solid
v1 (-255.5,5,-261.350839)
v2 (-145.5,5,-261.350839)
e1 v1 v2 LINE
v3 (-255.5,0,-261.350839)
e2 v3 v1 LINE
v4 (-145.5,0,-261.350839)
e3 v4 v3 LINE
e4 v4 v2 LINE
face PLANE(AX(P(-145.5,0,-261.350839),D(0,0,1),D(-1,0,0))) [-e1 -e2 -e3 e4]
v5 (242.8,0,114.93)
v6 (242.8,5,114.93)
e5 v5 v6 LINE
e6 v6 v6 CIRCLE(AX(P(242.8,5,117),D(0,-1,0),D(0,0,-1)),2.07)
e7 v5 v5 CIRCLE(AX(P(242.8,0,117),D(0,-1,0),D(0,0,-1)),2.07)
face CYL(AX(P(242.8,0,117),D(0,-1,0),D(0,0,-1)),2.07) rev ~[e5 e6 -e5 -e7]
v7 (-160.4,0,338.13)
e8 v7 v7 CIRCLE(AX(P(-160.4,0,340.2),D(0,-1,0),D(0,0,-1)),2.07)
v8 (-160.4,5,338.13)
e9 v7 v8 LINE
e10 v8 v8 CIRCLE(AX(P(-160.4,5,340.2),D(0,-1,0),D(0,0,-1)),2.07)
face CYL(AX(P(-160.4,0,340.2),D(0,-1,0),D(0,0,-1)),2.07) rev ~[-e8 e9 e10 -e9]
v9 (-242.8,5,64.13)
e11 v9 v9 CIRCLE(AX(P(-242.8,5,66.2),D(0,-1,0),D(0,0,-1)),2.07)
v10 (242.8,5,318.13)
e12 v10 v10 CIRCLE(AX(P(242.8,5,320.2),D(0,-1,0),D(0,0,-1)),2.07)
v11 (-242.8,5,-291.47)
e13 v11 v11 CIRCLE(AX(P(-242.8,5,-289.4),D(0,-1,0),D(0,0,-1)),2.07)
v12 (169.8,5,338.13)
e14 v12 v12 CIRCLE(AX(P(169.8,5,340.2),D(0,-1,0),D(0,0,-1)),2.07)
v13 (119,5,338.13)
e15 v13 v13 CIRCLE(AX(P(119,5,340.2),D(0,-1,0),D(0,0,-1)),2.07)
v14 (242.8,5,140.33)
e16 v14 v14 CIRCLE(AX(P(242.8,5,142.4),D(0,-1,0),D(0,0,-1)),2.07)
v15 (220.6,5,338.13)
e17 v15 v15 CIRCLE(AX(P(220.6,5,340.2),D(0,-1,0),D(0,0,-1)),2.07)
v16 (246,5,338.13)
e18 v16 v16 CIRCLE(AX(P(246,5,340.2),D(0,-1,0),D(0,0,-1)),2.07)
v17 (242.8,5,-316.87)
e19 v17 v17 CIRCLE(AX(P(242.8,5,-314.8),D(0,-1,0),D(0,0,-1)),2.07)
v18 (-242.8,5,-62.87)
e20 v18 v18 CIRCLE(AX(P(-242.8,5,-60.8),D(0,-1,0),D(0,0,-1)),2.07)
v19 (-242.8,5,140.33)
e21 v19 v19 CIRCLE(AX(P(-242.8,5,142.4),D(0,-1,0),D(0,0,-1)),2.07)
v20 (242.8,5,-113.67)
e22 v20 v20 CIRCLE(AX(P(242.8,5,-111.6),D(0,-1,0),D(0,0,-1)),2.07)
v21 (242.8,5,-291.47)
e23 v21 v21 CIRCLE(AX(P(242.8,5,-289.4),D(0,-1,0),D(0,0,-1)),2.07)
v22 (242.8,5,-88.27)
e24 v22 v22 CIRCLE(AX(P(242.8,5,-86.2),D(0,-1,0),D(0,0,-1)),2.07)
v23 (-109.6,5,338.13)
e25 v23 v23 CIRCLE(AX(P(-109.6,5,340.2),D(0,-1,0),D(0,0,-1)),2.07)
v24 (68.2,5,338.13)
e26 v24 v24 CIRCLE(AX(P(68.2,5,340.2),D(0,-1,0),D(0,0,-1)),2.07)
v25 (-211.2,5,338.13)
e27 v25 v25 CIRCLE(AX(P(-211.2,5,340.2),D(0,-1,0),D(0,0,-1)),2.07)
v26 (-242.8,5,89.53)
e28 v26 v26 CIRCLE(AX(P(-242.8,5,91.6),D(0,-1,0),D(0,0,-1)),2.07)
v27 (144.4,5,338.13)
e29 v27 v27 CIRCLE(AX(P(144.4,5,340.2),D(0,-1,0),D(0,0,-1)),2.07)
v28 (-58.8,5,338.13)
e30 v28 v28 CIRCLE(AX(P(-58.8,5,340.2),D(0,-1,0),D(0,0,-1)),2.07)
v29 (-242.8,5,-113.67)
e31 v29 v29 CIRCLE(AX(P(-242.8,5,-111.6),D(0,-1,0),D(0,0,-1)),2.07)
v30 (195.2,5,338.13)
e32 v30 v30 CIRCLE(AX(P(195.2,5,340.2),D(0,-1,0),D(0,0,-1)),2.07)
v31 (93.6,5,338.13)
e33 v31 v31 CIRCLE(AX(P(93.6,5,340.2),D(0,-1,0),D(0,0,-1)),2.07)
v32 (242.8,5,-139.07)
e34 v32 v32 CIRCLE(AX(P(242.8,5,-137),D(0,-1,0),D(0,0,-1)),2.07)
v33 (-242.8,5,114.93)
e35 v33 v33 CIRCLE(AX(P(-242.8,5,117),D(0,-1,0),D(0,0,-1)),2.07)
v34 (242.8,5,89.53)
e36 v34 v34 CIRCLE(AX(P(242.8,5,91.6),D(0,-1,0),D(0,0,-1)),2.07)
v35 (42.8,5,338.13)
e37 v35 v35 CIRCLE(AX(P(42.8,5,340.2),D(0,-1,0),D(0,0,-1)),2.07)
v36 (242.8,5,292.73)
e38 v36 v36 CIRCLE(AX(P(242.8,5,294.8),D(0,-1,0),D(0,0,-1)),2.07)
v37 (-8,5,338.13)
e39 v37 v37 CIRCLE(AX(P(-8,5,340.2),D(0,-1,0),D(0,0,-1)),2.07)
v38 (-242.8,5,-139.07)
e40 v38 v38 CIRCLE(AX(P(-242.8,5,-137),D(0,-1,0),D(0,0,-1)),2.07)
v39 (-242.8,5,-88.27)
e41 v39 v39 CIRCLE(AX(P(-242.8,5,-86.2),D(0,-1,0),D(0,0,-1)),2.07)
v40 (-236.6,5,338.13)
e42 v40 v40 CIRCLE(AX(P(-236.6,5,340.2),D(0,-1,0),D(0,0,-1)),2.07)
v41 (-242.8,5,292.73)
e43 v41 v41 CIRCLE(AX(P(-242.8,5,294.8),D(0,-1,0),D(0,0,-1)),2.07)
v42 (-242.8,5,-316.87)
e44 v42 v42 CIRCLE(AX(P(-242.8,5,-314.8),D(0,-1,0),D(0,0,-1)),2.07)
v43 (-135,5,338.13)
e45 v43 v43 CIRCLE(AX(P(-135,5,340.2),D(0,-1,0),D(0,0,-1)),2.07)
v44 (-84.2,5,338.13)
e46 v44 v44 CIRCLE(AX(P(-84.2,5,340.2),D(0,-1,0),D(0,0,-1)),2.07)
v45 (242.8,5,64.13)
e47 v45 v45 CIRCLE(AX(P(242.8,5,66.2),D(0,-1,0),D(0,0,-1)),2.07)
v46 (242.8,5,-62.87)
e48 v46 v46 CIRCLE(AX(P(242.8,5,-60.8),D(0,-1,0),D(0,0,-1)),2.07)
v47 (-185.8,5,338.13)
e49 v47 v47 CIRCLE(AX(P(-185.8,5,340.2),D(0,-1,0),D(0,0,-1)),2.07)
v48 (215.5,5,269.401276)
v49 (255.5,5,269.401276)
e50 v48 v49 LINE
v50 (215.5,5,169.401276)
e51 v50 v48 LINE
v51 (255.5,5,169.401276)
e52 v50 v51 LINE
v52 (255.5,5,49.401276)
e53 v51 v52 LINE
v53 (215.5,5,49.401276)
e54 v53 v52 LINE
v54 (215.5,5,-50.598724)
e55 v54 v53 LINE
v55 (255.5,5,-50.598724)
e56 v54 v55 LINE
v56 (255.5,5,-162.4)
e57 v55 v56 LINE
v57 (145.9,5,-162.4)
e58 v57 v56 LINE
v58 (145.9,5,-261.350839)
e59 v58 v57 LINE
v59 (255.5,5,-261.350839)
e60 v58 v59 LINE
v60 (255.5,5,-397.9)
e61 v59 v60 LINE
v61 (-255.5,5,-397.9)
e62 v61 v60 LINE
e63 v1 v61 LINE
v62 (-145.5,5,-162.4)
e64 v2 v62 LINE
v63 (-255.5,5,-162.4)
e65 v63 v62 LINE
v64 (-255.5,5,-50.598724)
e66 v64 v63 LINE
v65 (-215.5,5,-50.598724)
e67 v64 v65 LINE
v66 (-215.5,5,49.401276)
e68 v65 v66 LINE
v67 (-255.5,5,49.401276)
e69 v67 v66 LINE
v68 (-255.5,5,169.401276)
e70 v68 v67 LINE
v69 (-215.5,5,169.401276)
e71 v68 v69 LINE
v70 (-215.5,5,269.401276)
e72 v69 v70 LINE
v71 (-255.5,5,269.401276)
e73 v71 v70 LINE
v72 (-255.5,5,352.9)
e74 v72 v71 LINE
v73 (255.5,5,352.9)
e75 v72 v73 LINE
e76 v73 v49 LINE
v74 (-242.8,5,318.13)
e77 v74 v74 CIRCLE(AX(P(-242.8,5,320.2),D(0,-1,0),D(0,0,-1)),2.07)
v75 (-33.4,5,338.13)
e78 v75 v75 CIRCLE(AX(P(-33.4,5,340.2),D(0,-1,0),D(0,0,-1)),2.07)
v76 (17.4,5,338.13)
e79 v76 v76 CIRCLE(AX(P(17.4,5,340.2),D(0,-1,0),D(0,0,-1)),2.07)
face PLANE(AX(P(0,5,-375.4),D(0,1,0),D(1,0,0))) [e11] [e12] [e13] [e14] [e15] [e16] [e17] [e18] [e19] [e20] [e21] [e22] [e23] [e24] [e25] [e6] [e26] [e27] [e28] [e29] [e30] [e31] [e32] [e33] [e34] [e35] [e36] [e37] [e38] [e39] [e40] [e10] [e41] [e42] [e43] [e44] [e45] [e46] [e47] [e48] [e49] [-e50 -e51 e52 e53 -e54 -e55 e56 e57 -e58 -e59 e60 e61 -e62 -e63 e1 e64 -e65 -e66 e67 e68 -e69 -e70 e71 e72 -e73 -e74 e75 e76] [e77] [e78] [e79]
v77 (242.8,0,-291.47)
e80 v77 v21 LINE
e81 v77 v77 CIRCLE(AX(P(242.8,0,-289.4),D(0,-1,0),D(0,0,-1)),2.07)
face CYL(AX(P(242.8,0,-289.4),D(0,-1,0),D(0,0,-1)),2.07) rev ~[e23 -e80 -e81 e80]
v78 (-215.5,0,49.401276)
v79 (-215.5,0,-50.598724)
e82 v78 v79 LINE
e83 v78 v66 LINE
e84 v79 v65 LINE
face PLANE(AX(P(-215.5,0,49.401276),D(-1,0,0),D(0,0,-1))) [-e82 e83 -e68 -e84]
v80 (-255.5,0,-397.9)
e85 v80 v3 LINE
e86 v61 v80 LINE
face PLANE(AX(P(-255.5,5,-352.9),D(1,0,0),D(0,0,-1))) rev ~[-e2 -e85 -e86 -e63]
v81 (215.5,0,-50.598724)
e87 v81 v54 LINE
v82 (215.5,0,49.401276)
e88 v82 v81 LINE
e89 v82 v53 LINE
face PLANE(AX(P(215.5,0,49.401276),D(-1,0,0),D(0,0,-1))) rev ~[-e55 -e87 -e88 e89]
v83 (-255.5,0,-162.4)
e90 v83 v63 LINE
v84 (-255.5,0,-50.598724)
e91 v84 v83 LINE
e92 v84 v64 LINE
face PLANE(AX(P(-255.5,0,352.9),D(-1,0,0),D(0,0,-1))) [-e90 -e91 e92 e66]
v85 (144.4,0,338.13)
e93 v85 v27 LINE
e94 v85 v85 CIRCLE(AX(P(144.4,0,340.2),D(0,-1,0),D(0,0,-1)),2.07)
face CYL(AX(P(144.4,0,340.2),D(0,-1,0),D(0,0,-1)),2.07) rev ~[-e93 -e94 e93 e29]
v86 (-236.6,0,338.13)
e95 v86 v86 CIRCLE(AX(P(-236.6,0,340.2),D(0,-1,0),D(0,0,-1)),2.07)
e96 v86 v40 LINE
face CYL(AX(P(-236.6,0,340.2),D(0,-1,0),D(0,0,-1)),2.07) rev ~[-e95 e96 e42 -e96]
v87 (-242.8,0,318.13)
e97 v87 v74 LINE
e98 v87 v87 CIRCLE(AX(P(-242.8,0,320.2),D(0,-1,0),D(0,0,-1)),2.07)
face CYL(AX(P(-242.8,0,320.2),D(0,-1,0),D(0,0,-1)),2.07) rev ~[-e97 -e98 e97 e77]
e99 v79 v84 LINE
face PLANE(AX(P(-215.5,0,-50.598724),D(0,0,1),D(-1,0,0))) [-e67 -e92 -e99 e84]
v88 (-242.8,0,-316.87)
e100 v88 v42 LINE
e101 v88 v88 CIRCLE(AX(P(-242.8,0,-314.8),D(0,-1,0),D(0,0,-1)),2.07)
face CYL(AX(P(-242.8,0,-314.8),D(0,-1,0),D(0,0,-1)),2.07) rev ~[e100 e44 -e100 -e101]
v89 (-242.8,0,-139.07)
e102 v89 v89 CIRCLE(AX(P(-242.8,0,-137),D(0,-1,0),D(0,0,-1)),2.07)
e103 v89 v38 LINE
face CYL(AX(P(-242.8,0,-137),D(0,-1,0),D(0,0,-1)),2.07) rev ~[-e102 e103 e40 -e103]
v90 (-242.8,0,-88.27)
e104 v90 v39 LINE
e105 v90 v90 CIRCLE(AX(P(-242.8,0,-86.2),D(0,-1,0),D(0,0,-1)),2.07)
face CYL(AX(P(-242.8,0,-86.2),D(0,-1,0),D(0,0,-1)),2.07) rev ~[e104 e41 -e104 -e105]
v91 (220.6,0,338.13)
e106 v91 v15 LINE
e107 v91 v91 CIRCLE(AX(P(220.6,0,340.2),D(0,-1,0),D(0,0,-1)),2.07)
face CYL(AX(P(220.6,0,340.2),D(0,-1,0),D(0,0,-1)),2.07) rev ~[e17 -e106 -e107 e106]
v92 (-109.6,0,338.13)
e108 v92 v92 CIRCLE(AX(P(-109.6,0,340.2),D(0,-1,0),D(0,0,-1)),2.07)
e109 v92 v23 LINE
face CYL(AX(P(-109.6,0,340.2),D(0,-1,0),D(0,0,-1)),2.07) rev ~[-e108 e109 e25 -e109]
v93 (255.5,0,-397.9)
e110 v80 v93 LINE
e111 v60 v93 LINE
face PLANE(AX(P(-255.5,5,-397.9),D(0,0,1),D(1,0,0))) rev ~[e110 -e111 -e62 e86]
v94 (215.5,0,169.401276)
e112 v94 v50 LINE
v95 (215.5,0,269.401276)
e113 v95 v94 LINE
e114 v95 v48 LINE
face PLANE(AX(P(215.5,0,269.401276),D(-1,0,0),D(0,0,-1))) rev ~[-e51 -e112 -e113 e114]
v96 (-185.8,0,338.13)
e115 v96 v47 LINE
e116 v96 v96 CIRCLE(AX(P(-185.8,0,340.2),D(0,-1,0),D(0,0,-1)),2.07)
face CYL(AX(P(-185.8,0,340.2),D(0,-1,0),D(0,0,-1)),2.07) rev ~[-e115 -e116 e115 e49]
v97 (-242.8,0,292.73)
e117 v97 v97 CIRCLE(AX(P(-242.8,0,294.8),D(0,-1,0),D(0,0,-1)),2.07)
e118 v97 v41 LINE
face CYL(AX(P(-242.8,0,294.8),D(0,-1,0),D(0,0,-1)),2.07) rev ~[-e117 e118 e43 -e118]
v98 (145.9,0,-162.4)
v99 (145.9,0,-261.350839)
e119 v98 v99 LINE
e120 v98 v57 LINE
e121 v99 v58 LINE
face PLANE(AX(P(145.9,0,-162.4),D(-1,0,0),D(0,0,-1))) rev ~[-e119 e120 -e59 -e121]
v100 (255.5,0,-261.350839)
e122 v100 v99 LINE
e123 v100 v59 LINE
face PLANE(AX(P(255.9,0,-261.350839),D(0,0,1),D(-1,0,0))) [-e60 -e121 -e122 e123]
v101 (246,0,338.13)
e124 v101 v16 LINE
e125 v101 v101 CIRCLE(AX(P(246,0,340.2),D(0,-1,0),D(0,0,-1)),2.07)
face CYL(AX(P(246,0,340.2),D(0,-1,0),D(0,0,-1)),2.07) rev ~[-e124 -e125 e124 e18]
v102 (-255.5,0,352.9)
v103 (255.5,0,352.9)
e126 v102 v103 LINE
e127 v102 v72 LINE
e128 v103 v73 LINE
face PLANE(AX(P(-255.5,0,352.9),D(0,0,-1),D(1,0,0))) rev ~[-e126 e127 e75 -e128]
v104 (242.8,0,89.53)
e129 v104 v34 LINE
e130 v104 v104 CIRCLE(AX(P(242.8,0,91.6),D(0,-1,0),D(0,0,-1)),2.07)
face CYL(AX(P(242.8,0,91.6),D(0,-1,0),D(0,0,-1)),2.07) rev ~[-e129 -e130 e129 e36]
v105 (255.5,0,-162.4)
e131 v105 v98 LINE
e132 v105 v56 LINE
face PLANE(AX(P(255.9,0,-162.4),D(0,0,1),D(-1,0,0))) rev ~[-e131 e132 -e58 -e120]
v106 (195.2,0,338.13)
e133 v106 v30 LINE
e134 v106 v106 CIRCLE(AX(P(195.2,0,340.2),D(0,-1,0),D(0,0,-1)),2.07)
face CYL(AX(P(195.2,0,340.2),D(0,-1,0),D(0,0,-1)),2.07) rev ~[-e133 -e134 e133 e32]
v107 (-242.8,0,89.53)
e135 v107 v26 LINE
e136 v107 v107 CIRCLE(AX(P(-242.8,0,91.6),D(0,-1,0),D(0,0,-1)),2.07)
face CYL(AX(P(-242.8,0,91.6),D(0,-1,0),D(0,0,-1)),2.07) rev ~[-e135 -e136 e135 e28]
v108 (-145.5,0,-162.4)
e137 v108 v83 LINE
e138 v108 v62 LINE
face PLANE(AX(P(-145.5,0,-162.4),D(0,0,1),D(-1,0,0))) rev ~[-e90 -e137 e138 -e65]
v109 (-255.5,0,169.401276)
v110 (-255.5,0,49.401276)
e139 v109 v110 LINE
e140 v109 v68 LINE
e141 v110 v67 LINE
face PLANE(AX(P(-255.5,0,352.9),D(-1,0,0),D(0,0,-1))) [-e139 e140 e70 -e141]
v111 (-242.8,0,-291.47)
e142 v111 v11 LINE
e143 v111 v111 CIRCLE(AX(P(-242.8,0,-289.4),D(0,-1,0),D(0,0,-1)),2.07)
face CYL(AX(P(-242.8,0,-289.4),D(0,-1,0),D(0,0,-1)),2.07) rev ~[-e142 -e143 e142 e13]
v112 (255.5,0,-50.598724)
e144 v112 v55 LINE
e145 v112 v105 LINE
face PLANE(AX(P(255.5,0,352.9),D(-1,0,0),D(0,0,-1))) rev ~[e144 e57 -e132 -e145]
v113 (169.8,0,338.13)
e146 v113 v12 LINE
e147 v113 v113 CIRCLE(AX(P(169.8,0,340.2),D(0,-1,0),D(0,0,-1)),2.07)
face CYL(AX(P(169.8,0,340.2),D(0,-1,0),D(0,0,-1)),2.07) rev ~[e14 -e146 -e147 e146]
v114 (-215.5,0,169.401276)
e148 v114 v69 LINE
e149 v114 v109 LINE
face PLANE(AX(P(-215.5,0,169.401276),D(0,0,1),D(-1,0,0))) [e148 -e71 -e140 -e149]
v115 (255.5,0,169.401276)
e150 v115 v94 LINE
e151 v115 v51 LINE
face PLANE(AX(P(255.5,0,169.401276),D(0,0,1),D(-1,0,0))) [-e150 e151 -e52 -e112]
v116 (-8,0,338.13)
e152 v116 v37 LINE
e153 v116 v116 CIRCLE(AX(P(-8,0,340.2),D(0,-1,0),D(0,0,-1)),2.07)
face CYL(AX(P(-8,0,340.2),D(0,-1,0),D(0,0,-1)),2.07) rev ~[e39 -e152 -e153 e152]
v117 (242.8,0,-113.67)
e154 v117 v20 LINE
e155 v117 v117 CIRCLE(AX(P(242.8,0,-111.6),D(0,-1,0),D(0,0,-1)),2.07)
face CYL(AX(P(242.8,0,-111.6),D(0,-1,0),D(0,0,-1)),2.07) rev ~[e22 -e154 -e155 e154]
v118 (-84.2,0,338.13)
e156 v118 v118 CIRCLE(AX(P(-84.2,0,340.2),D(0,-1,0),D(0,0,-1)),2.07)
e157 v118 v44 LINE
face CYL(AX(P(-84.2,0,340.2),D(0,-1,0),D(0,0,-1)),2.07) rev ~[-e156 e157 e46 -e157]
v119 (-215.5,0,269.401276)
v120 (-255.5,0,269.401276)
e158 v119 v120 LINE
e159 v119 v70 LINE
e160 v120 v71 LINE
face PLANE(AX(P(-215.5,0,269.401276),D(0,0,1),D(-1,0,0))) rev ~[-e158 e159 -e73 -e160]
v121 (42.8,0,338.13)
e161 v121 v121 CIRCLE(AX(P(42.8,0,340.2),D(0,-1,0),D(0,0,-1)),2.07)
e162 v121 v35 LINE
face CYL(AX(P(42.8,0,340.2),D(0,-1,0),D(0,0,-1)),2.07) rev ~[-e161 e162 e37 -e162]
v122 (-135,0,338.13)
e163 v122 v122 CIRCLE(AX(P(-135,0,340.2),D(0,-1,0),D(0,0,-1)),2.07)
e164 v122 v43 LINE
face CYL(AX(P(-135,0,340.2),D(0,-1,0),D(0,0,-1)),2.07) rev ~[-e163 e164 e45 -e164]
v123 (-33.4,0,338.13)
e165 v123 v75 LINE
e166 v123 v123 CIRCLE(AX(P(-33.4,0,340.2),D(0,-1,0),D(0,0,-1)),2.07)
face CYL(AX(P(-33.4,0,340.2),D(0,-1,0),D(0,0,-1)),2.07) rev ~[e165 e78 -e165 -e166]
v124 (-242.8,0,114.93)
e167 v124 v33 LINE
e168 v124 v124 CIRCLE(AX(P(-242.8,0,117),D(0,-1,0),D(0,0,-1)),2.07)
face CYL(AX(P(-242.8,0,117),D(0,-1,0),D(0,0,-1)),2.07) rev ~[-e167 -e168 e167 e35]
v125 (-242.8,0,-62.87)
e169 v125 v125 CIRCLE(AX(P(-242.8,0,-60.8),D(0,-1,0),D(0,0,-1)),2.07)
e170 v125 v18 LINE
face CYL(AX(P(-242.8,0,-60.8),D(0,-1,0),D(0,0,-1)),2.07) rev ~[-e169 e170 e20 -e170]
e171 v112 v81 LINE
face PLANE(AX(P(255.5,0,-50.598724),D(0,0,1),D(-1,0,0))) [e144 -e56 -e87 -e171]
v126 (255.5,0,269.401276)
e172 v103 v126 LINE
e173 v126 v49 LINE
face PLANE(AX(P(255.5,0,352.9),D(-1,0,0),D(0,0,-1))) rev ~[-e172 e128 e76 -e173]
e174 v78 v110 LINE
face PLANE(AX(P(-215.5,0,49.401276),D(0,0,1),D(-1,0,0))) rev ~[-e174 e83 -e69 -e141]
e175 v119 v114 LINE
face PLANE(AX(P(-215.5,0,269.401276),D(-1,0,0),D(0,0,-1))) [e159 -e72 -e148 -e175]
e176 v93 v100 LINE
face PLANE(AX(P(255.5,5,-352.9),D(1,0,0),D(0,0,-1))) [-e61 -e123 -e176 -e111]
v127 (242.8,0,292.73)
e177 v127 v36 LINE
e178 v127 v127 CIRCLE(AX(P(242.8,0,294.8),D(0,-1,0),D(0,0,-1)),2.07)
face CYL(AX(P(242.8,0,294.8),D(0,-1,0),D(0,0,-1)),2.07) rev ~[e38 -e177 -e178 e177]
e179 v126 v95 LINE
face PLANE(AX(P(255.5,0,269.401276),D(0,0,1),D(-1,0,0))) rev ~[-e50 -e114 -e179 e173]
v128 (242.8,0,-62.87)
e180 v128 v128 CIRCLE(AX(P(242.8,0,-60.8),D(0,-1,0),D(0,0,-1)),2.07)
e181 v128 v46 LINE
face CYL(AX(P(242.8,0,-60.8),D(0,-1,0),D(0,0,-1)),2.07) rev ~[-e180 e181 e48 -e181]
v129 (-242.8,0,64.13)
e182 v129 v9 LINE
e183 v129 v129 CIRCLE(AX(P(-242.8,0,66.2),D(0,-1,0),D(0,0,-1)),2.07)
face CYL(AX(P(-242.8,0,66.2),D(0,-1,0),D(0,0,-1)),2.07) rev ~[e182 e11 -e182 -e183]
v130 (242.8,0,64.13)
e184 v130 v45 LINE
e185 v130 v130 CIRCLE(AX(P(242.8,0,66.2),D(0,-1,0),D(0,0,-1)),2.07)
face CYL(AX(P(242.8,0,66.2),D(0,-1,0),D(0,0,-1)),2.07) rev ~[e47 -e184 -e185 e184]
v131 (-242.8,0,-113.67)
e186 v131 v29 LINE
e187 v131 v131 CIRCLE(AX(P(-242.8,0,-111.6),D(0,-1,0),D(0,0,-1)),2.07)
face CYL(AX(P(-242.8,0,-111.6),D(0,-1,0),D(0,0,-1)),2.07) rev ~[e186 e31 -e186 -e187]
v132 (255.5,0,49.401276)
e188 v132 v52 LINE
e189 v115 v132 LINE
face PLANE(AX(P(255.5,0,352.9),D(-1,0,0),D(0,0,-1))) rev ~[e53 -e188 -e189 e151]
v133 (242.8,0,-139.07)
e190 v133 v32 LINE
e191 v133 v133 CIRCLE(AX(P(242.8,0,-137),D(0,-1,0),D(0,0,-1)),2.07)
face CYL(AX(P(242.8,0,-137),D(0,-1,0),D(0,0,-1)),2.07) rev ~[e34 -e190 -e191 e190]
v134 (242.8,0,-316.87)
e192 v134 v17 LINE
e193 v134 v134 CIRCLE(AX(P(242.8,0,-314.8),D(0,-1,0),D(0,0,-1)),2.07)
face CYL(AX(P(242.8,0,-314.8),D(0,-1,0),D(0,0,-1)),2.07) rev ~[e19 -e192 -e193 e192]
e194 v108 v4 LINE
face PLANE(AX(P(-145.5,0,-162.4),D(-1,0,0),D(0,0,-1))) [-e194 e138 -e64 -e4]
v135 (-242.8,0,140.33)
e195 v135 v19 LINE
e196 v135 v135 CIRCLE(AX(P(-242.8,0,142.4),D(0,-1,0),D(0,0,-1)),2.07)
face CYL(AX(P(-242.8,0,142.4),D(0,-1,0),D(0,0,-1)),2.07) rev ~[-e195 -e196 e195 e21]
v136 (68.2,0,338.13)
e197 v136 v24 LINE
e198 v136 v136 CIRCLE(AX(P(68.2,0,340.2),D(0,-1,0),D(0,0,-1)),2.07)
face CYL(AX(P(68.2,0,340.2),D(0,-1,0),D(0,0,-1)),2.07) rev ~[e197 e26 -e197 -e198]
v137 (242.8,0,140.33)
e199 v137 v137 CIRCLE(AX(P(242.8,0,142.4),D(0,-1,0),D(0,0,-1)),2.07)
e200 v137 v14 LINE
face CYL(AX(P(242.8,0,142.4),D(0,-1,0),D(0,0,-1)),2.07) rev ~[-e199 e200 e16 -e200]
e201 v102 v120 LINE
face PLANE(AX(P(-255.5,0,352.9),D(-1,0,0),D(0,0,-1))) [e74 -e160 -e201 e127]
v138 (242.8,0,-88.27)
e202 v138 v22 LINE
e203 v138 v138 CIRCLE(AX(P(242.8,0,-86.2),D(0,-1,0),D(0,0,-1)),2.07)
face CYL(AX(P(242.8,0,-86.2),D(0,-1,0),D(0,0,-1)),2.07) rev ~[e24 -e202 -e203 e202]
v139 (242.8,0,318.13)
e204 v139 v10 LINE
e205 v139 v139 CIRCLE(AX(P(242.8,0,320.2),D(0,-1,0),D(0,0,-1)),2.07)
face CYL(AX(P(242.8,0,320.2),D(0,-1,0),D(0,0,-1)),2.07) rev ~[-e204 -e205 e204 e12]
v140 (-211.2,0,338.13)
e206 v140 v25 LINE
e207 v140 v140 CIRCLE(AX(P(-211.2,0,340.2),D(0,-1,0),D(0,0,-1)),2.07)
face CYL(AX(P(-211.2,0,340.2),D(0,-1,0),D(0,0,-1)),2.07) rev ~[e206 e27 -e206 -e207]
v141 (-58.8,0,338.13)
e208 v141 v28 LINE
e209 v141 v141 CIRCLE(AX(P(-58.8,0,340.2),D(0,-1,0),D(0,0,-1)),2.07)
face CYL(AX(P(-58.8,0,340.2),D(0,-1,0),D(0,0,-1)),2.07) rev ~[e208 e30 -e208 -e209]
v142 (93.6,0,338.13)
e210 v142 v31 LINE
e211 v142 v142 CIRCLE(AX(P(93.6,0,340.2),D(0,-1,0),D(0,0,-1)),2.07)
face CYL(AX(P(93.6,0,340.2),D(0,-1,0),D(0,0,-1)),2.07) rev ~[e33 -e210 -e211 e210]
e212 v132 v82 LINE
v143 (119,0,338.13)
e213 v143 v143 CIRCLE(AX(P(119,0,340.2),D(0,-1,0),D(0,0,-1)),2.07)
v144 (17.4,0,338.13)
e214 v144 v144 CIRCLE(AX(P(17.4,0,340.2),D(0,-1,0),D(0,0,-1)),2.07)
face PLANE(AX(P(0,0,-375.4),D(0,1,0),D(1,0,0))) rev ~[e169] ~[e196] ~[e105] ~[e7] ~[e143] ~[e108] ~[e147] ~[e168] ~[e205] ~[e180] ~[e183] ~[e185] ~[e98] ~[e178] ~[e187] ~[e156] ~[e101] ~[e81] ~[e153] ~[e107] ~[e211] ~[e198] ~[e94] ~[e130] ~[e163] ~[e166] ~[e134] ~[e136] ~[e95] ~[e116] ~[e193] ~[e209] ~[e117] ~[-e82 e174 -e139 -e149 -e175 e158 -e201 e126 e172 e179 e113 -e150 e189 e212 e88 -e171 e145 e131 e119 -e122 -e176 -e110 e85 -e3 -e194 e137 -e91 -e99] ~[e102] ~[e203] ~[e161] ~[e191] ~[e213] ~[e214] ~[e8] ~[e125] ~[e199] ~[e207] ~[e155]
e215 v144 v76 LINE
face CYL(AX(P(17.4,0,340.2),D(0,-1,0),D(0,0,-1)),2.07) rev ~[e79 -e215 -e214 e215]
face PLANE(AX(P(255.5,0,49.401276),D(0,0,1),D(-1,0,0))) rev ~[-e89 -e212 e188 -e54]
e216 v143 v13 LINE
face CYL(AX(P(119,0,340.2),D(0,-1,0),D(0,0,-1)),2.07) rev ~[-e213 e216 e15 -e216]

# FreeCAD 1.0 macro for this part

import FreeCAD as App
import Part
import Sketcher
from FreeCAD import Vector
Q = App.Units.Quantity

doc = App.newDocument("Part")
body = doc.addObject("PartDesign::Body", "Body")

sketch1 = body.newObject("Sketcher::SketchObject", "Sketch")
sketch1.AttachmentSupport = (doc.getObject("XZ_Plane"), [""])
sketch1.MapMode = "FlatFace"
sketch1.addGeometry([
    Part.LineSegment(Vector(-256, -353, 0), Vector(-256, 353, 0)),
    Part.LineSegment(Vector(-256, 353, 0), Vector(256, 353, 0)),
    Part.LineSegment(Vector(256, 353, 0), Vector(256, -353, 0)),
    Part.LineSegment(Vector(256, -353, 0), Vector(-256, -353, 0)),
], False)
sketch1.addConstraint([
    Sketcher.Constraint("Coincident", 0, 2, 1, 1),
    Sketcher.Constraint("Coincident", 1, 2, 2, 1),
    Sketcher.Constraint("Coincident", 2, 2, 3, 1),
    Sketcher.Constraint("Coincident", 3, 2, 0, 1),
    Sketcher.Constraint("Vertical", 0),
    Sketcher.Constraint("Horizontal", 1),
    Sketcher.Constraint("Vertical", 2),
    Sketcher.Constraint("Horizontal", 3),
    Sketcher.Constraint("Symmetric", 0, 2, 2, 2, -1, 1),
    Sketcher.Constraint("DistanceX", 1, 1, 1, 2, Q("511 mm")),
    Sketcher.Constraint("DistanceY", 0, 1, 0, 2, Q("705.8 mm")),
])
pad1 = body.newObject("PartDesign::Pad", "Pad")
pad1.Profile = sketch1
pad1.Length = 5
pad1.Reversed = True

sketch2 = body.newObject("Sketcher::SketchObject", "Sketch001")
sketch2.AttachmentSupport = (doc.getObject("XZ_Plane"), [""])
sketch2.MapMode = "FlatFace"
sketch2.addGeometry([
    Part.LineSegment(Vector(-216, 169, 0), Vector(-216, 269, 0)),
    Part.LineSegment(Vector(-216, 269, 0), Vector(-256, 269, 0)),
    Part.LineSegment(Vector(-256, 269, 0), Vector(-256, 169, 0)),
    Part.LineSegment(Vector(-256, 169, 0), Vector(-216, 169, 0)),
    Part.LineSegment(Vector(256, 169, 0), Vector(256, 269, 0)),
    Part.LineSegment(Vector(256, 269, 0), Vector(216, 269, 0)),
    Part.LineSegment(Vector(216, 269, 0), Vector(216, 169, 0)),
    Part.LineSegment(Vector(216, 169, 0), Vector(256, 169, 0)),
    Part.LineSegment(Vector(-216, -51, 0), Vector(-216, 49, 0)),
    Part.LineSegment(Vector(-216, 49, 0), Vector(-256, 49, 0)),
    Part.LineSegment(Vector(-256, 49, 0), Vector(-256, -51, 0)),
    Part.LineSegment(Vector(-256, -51, 0), Vector(-216, -51, 0)),
    Part.LineSegment(Vector(256, -51, 0), Vector(256, 49, 0)),
    Part.LineSegment(Vector(256, 49, 0), Vector(216, 49, 0)),
    Part.LineSegment(Vector(216, 49, 0), Vector(216, -51, 0)),
    Part.LineSegment(Vector(216, -51, 0), Vector(256, -51, 0)),
], False)
sketch2.addConstraint([
    Sketcher.Constraint("Coincident", 0, 2, 1, 1),
    Sketcher.Constraint("Coincident", 1, 2, 2, 1),
    Sketcher.Constraint("Coincident", 2, 2, 3, 1),
    Sketcher.Constraint("Coincident", 3, 2, 0, 1),
    Sketcher.Constraint("Coincident", 4, 2, 5, 1),
    Sketcher.Constraint("Coincident", 5, 2, 6, 1),
    Sketcher.Constraint("Coincident", 6, 2, 7, 1),
    Sketcher.Constraint("Coincident", 7, 2, 4, 1),
    Sketcher.Constraint("Coincident", 8, 2, 9, 1),
    Sketcher.Constraint("Coincident", 9, 2, 10, 1),
    Sketcher.Constraint("Coincident", 10, 2, 11, 1),
    Sketcher.Constraint("Coincident", 11, 2, 8, 1),
    Sketcher.Constraint("Coincident", 12, 2, 13, 1),
    Sketcher.Constraint("Coincident", 13, 2, 14, 1),
    Sketcher.Constraint("Coincident", 14, 2, 15, 1),
    Sketcher.Constraint("Coincident", 15, 2, 12, 1),
    Sketcher.Constraint("Vertical", 0),
    Sketcher.Constraint("Horizontal", 1),
    Sketcher.Constraint("Vertical", 2),
    Sketcher.Constraint("Horizontal", 3),
    Sketcher.Constraint("Vertical", 4),
    Sketcher.Constraint("Horizontal", 5),
    Sketcher.Constraint("Vertical", 6),
    Sketcher.Constraint("Horizontal", 7),
    Sketcher.Constraint("Vertical", 8),
    Sketcher.Constraint("Horizontal", 9),
    Sketcher.Constraint("Vertical", 10),
    Sketcher.Constraint("Horizontal", 11),
    Sketcher.Constraint("Vertical", 12),
    Sketcher.Constraint("Horizontal", 13),
    Sketcher.Constraint("Vertical", 14),
    Sketcher.Constraint("Horizontal", 15),
    Sketcher.Constraint("Symmetric", 1, 2, 4, 2, -2),
    Sketcher.Constraint("Symmetric", 3, 2, 6, 2, -2),
    Sketcher.Constraint("Symmetric", 9, 2, 12, 2, -2),
    Sketcher.Constraint("Symmetric", 11, 2, 14, 2, -2),
    Sketcher.Constraint("Vertical", 3, 2, 8, 2),
    Sketcher.Constraint("Vertical", 2, 2, 9, 2),
    Sketcher.Constraint("Equal", 6, 8),
    Sketcher.Constraint("DistanceX", 1, 2, 1, 1, Q("40 mm")),
    Sketcher.Constraint("DistanceY", 0, 1, 0, 2, Q("100 mm")),
    Sketcher.Constraint("DistanceX", 0, 2, 4, 2, Q("471 mm")),
    Sketcher.Constraint("DistanceY", 8, 2, 3, 2, Q("120 mm")),
    Sketcher.Constraint("DistanceY", -1, 1, 0, 2, Q("269.401276 mm")),
])
pocket1 = body.newObject("PartDesign::Pocket", "Pocket")
pocket1.Profile = sketch2
pocket1.Length = 10

sketch3 = body.newObject("Sketcher::SketchObject", "Sketch002")
sketch3.AttachmentSupport = (doc.getObject("XZ_Plane"), [""])
sketch3.MapMode = "FlatFace"
sketch3.addGeometry([
    Part.LineSegment(Vector(-146, -261, 0), Vector(-146, -162, 0)),
    Part.LineSegment(Vector(-146, -162, 0), Vector(-256, -162, 0)),
    Part.LineSegment(Vector(-256, -162, 0), Vector(-256, -261, 0)),
    Part.LineSegment(Vector(-256, -261, 0), Vector(-146, -261, 0)),
    Part.LineSegment(Vector(256, -261, 0), Vector(256, -162, 0)),
    Part.LineSegment(Vector(256, -162, 0), Vector(146, -162, 0)),
    Part.LineSegment(Vector(146, -162, 0), Vector(146, -261, 0)),
    Part.LineSegment(Vector(146, -261, 0), Vector(256, -261, 0)),
], False)
sketch3.addConstraint([
    Sketcher.Constraint("Coincident", 0, 2, 1, 1),
    Sketcher.Constraint("Coincident", 1, 2, 2, 1),
    Sketcher.Constraint("Coincident", 2, 2, 3, 1),
    Sketcher.Constraint("Coincident", 3, 2, 0, 1),
    Sketcher.Constraint("Coincident", 4, 2, 5, 1),
    Sketcher.Constraint("Coincident", 5, 2, 6, 1),
    Sketcher.Constraint("Coincident", 6, 2, 7, 1),
    Sketcher.Constraint("Coincident", 7, 2, 4, 1),
    Sketcher.Constraint("Vertical", 0),
    Sketcher.Constraint("Horizontal", 1),
    Sketcher.Constraint("Vertical", 2),
    Sketcher.Constraint("Horizontal", 3),
    Sketcher.Constraint("Vertical", 4),
    Sketcher.Constraint("Horizontal", 5),
    Sketcher.Constraint("Vertical", 6),
    Sketcher.Constraint("Horizontal", 7),
    Sketcher.Constraint("Horizontal", 1, 2, 4, 2),
    Sketcher.Constraint("Horizontal", 3, 2, 6, 2),
    Sketcher.Constraint("Equal", 3, 5),
    Sketcher.Constraint("DistanceX", 1, 2, 1, 1, Q("110 mm")),
    Sketcher.Constraint("DistanceX", 0, 2, -1, 1, Q("145.5 mm")),
    Sketcher.Constraint("DistanceY", 0, 2, -1, 1, Q("162.4 mm")),
    Sketcher.Constraint("DistanceX", -1, 1, 4, 2, Q("255.9 mm")),
    Sketcher.Constraint("DistanceY", 0, 1, 0, 2, Q("98.950839 mm")),
])
pocket2 = body.newObject("PartDesign::Pocket", "Pocket001")
pocket2.Profile = sketch3
pocket2.Length = 10

sketch4 = body.newObject("Sketcher::SketchObject", "Sketch003")
sketch4.AttachmentSupport = (doc.getObject("XZ_Plane"), [""])
sketch4.MapMode = "FlatFace"
sketch4.addGeometry([
    Part.Circle(Vector(-236.6, 340.2, 0), Vector(0, 0, 1), 2.1),
    Part.Circle(Vector(-211.2, 340.2, 0), Vector(0, 0, 1), 2.1),
    Part.Circle(Vector(-185.8, 340.2, 0), Vector(0, 0, 1), 2.1),
    Part.Circle(Vector(-160.4, 340.2, 0), Vector(0, 0, 1), 2.1),
    Part.Circle(Vector(-135, 340.2, 0), Vector(0, 0, 1), 2.1),
    Part.Circle(Vector(-109.6, 340.2, 0), Vector(0, 0, 1), 2.1),
    Part.Circle(Vector(-84.2, 340.2, 0), Vector(0, 0, 1), 2.1),
    Part.Circle(Vector(-58.8, 340.2, 0), Vector(0, 0, 1), 2.1),
    Part.Circle(Vector(-33.4, 340.2, 0), Vector(0, 0, 1), 2.1),
    Part.Circle(Vector(-8, 340.2, 0), Vector(0, 0, 1), 2.1),
    Part.Circle(Vector(17.4, 340.2, 0), Vector(0, 0, 1), 2.1),
    Part.Circle(Vector(42.8, 340.2, 0), Vector(0, 0, 1), 2.1),
    Part.Circle(Vector(68.2, 340.2, 0), Vector(0, 0, 1), 2.1),
    Part.Circle(Vector(93.6, 340.2, 0), Vector(0, 0, 1), 2.1),
    Part.Circle(Vector(119, 340.2, 0), Vector(0, 0, 1), 2.1),
    Part.Circle(Vector(144.4, 340.2, 0), Vector(0, 0, 1), 2.1),
    Part.Circle(Vector(169.8, 340.2, 0), Vector(0, 0, 1), 2.1),
    Part.Circle(Vector(195.2, 340.2, 0), Vector(0, 0, 1), 2.1),
    Part.Circle(Vector(220.6, 340.2, 0), Vector(0, 0, 1), 2.1),
    Part.Circle(Vector(246, 340.2, 0), Vector(0, 0, 1), 2.1),
    Part.Circle(Vector(-242.8, 320.2, 0), Vector(0, 0, 1), 2.1),
    Part.Circle(Vector(-242.8, 294.8, 0), Vector(0, 0, 1), 2.1),
    Part.Circle(Vector(-242.8, 142.4, 0), Vector(0, 0, 1), 2.1),
    Part.Circle(Vector(-242.8, 117, 0), Vector(0, 0, 1), 2.1),
    Part.Circle(Vector(-242.8, 91.6, 0), Vector(0, 0, 1), 2.1),
    Part.Circle(Vector(-242.8, 66.2, 0), Vector(0, 0, 1), 2.1),
    Part.Circle(Vector(-242.8, -60.8, 0), Vector(0, 0, 1), 2.1),
    Part.Circle(Vector(-242.8, -86.2, 0), Vector(0, 0, 1), 2.1),
    Part.Circle(Vector(-242.8, -111.6, 0), Vector(0, 0, 1), 2.1),
    Part.Circle(Vector(-242.8, -137, 0), Vector(0, 0, 1), 2.1),
    Part.Circle(Vector(-242.8, -289.4, 0), Vector(0, 0, 1), 2.1),
    Part.Circle(Vector(-242.8, -314.8, 0), Vector(0, 0, 1), 2.1),
], False)
sketch4.addConstraint([
    Sketcher.Constraint("Equal", 0, 1),
    Sketcher.Constraint("Equal", 1, 2),
    Sketcher.Constraint("Equal", 2, 3),
    Sketcher.Constraint("Equal", 3, 4),
    Sketcher.Constraint("Equal", 4, 5),
    Sketcher.Constraint("Equal", 5, 6),
    Sketcher.Constraint("Equal", 6, 7),
    Sketcher.Constraint("Equal", 7, 8),
    Sketcher.Constraint("Equal", 8, 9),
    Sketcher.Constraint("Equal", 9, 10),
    Sketcher.Constraint("Equal", 10, 11),
    Sketcher.Constraint("Equal", 11, 12),
    Sketcher.Constraint("Equal", 12, 13),
    Sketcher.Constraint("Equal", 13, 14),
    Sketcher.Constraint("Equal", 14, 15),
    Sketcher.Constraint("Equal", 15, 16),
    Sketcher.Constraint("Equal", 16, 17),
    Sketcher.Constraint("Equal", 17, 18),
    Sketcher.Constraint("Equal", 18, 19),
    Sketcher.Constraint("Equal", 19, 20),
    Sketcher.Constraint("Equal", 20, 21),
    Sketcher.Constraint("Equal", 21, 22),
    Sketcher.Constraint("Equal", 22, 23),
    Sketcher.Constraint("Equal", 23, 24),
    Sketcher.Constraint("Equal", 24, 25),
    Sketcher.Constraint("Equal", 25, 26),
    Sketcher.Constraint("Equal", 26, 27),
    Sketcher.Constraint("Equal", 27, 28),
    Sketcher.Constraint("Equal", 28, 29),
    Sketcher.Constraint("Equal", 29, 30),
    Sketcher.Constraint("Equal", 30, 31),
    Sketcher.Constraint("Horizontal", 0, 3, 1, 3),
    Sketcher.Constraint("Horizontal", 1, 3, 2, 3),
    Sketcher.Constraint("Horizontal", 2, 3, 3, 3),
    Sketcher.Constraint("Horizontal", 3, 3, 4, 3),
    Sketcher.Constraint("Horizontal", 4, 3, 5, 3),
    Sketcher.Constraint("Horizontal", 5, 3, 6, 3),
    Sketcher.Constraint("Horizontal", 6, 3, 7, 3),
    Sketcher.Constraint("Horizontal", 7, 3, 8, 3),
    Sketcher.Constraint("Horizontal", 8, 3, 9, 3),
    Sketcher.Constraint("Horizontal", 9, 3, 10, 3),
    Sketcher.Constraint("Horizontal", 10, 3, 11, 3),
    Sketcher.Constraint("Horizontal", 11, 3, 12, 3),
    Sketcher.Constraint("Horizontal", 12, 3, 13, 3),
    Sketcher.Constraint("Horizontal", 13, 3, 14, 3),
    Sketcher.Constraint("Horizontal", 14, 3, 15, 3),
    Sketcher.Constraint("Horizontal", 15, 3, 16, 3),
    Sketcher.Constraint("Horizontal", 16, 3, 17, 3),
    Sketcher.Constraint("Horizontal", 17, 3, 18, 3),
    Sketcher.Constraint("Horizontal", 18, 3, 19, 3),
    Sketcher.Constraint("Vertical", 20, 3, 21, 3),
    Sketcher.Constraint("Vertical", 21, 3, 22, 3),
    Sketcher.Constraint("Vertical", 22, 3, 23, 3),
    Sketcher.Constraint("Vertical", 23, 3, 24, 3),
    Sketcher.Constraint("Vertical", 24, 3, 25, 3),
    Sketcher.Constraint("Vertical", 25, 3, 26, 3),
    Sketcher.Constraint("Vertical", 26, 3, 27, 3),
    Sketcher.Constraint("Vertical", 27, 3, 28, 3),
    Sketcher.Constraint("Vertical", 28, 3, 29, 3),
    Sketcher.Constraint("Vertical", 29, 3, 30, 3),
    Sketcher.Constraint("Vertical", 30, 3, 31, 3),
    Sketcher.Constraint("Diameter", 0, Q("4.14 mm")),
    Sketcher.Constraint("DistanceX", 4, 3, -1, 1, Q("135 mm")),
    Sketcher.Constraint("DistanceX", 9, 3, -1, 1, Q("8 mm")),
    Sketcher.Constraint("DistanceX", -1, 1, 14, 3, Q("119 mm")),
    Sketcher.Constraint("DistanceX", -1, 1, 19, 3, Q("246 mm")),
    Sketcher.Constraint("DistanceY", -1, 1, 23, 3, Q("117 mm")),
    Sketcher.Constraint("DistanceY", 29, 3, -1, 1, Q("137 mm")),
    Sketcher.Constraint("DistanceX", 0, 3, 5, 3, Q("127 mm")),
    Sketcher.Constraint("DistanceX", 1, 3, 6, 3, Q("127 mm")),
    Sketcher.Constraint("DistanceX", 2, 3, 7, 3, Q("127 mm")),
    Sketcher.Constraint("DistanceX", 3, 3, 8, 3, Q("127 mm")),
    Sketcher.Constraint("DistanceX", 5, 3, 10, 3, Q("127 mm")),
    Sketcher.Constraint("DistanceX", 6, 3, 11, 3, Q("127 mm")),
    Sketcher.Constraint("DistanceX", 7, 3, 12, 3, Q("127 mm")),
    Sketcher.Constraint("DistanceX", 8, 3, 13, 3, Q("127 mm")),
    Sketcher.Constraint("DistanceX", 10, 3, 15, 3, Q("127 mm")),
    Sketcher.Constraint("DistanceX", 11, 3, 16, 3, Q("127 mm")),
    Sketcher.Constraint("DistanceX", 12, 3, 17, 3, Q("127 mm")),
    Sketcher.Constraint("DistanceX", 13, 3, 18, 3, Q("127 mm")),
    Sketcher.Constraint("DistanceY", 20, 3, 0, 3, Q("20 mm")),
    Sketcher.Constraint("DistanceX", 20, 3, 2, 3, Q("57 mm")),
    Sketcher.Constraint("DistanceY", 25, 3, 20, 3, Q("254 mm")),
    Sketcher.Constraint("DistanceY", 26, 3, 25, 3, Q("127 mm")),
    Sketcher.Constraint("DistanceY", 31, 3, 26, 3, Q("254 mm")),
    Sketcher.Constraint("DistanceX", 0, 3, -1, 1, Q("236.6 mm")),
    Sketcher.Constraint("DistanceY", -1, 1, 0, 3, Q("340.2 mm")),
    Sketcher.Constraint("DistanceX", 1, 3, -1, 1, Q("211.2 mm")),
    Sketcher.Constraint("DistanceX", 2, 3, -1, 1, Q("185.8 mm")),
    Sketcher.Constraint("DistanceX", 3, 3, -1, 1, Q("160.4 mm")),
    Sketcher.Constraint("DistanceY", -1, 1, 21, 3, Q("294.8 mm")),
    Sketcher.Constraint("DistanceY", -1, 1, 22, 3, Q("142.4 mm")),
    Sketcher.Constraint("DistanceY", -1, 1, 24, 3, Q("91.6 mm")),
    Sketcher.Constraint("DistanceY", 27, 3, -1, 1, Q("86.2 mm")),
    Sketcher.Constraint("DistanceY", 28, 3, -1, 1, Q("111.6 mm")),
    Sketcher.Constraint("DistanceY", 30, 3, -1, 1, Q("289.4 mm")),
])
pocket3 = body.newObject("PartDesign::Pocket", "Pocket002")
pocket3.Profile = sketch4
pocket3.Length = 10

sketch5 = body.newObject("Sketcher::SketchObject", "Sketch004")
sketch5.AttachmentSupport = (doc.getObject("XZ_Plane"), [""])
sketch5.MapMode = "FlatFace"
sketch5.addGeometry([
    Part.Circle(Vector(-246, -385.2, 0), Vector(0, 0, 1), 2.1),
    Part.Circle(Vector(-220.6, -385.2, 0), Vector(0, 0, 1), 2.1),
    Part.Circle(Vector(-195.2, -385.2, 0), Vector(0, 0, 1), 2.1),
    Part.Circle(Vector(-169.8, -385.2, 0), Vector(0, 0, 1), 2.1),
    Part.Circle(Vector(-144.4, -385.2, 0), Vector(0, 0, 1), 2.1),
    Part.Circle(Vector(-119, -385.2, 0), Vector(0, 0, 1), 2.1),
    Part.Circle(Vector(-93.6, -385.2, 0), Vector(0, 0, 1), 2.1),
    Part.Circle(Vector(-68.2, -385.2, 0), Vector(0, 0, 1), 2.1),
    Part.Circle(Vector(-42.8, -385.2, 0), Vector(0, 0, 1), 2.1),
    Part.Circle(Vector(-17.4, -385.2, 0), Vector(0, 0, 1), 2.1),
    Part.Circle(Vector(8, -385.2, 0), Vector(0, 0, 1), 2.1),
    Part.Circle(Vector(33.4, -385.2, 0), Vector(0, 0, 1), 2.1),
    Part.Circle(Vector(58.8, -385.2, 0), Vector(0, 0, 1), 2.1),
    Part.Circle(Vector(84.2, -385.2, 0), Vector(0, 0, 1), 2.1),
    Part.Circle(Vector(109.6, -385.2, 0), Vector(0, 0, 1), 2.1),
    Part.Circle(Vector(135, -385.2, 0), Vector(0, 0, 1), 2.1),
    Part.Circle(Vector(160.4, -385.2, 0), Vector(0, 0, 1), 2.1),
    Part.Circle(Vector(185.8, -385.2, 0), Vector(0, 0, 1), 2.1),
    Part.Circle(Vector(211.2, -385.2, 0), Vector(0, 0, 1), 2.1),
    Part.Circle(Vector(236.6, -385.2, 0), Vector(0, 0, 1), 2.1),
    Part.Circle(Vector(242.8, -314.8, 0), Vector(0, 0, 1), 2.1),
    Part.Circle(Vector(242.8, -289.4, 0), Vector(0, 0, 1), 2.1),
    Part.Circle(Vector(242.8, -137, 0), Vector(0, 0, 1), 2.1),
    Part.Circle(Vector(242.8, -111.6, 0), Vector(0, 0, 1), 2.1),
    Part.Circle(Vector(242.8, -86.2, 0), Vector(0, 0, 1), 2.1),
    Part.Circle(Vector(242.8, -60.8, 0), Vector(0, 0, 1), 2.1),
    Part.Circle(Vector(242.8, 66.2, 0), Vector(0, 0, 1), 2.1),
    Part.Circle(Vector(242.8, 91.6, 0), Vector(0, 0, 1), 2.1),
    Part.Circle(Vector(242.8, 117, 0), Vector(0, 0, 1), 2.1),
    Part.Circle(Vector(242.8, 142.4, 0), Vector(0, 0, 1), 2.1),
    Part.Circle(Vector(242.8, 294.8, 0), Vector(0, 0, 1), 2.1),
    Part.Circle(Vector(242.8, 320.2, 0), Vector(0, 0, 1), 2.1),
], False)
sketch5.addConstraint([
    Sketcher.Constraint("Equal", 0, 1),
    Sketcher.Constraint("Equal", 1, 2),
    Sketcher.Constraint("Equal", 2, 3),
    Sketcher.Constraint("Equal", 3, 4),
    Sketcher.Constraint("Equal", 4, 5),
    Sketcher.Constraint("Equal", 5, 6),
    Sketcher.Constraint("Equal", 6, 7),
    Sketcher.Constraint("Equal", 7, 8),
    Sketcher.Constraint("Equal", 8, 9),
    Sketcher.Constraint("Equal", 9, 10),
    Sketcher.Constraint("Equal", 10, 11),
    Sketcher.Constraint("Equal", 11, 12),
    Sketcher.Constraint("Equal", 12, 13),
    Sketcher.Constraint("Equal", 13, 14),
    Sketcher.Constraint("Equal", 14, 15),
    Sketcher.Constraint("Equal", 15, 16),
    Sketcher.Constraint("Equal", 16, 17),
    Sketcher.Constraint("Equal", 17, 18),
    Sketcher.Constraint("Equal", 18, 19),
    Sketcher.Constraint("Equal", 19, 20),
    Sketcher.Constraint("Equal", 20, 21),
    Sketcher.Constraint("Equal", 21, 22),
    Sketcher.Constraint("Equal", 22, 23),
    Sketcher.Constraint("Equal", 23, 24),
    Sketcher.Constraint("Equal", 24, 25),
    Sketcher.Constraint("Equal", 25, 26),
    Sketcher.Constraint("Equal", 26, 27),
    Sketcher.Constraint("Equal", 27, 28),
    Sketcher.Constraint("Equal", 28, 29),
    Sketcher.Constraint("Equal", 29, 30),
    Sketcher.Constraint("Equal", 30, 31),
    Sketcher.Constraint("Horizontal", 0, 3, 1, 3),
    Sketcher.Constraint("Horizontal", 1, 3, 2, 3),
    Sketcher.Constraint("Horizontal", 2, 3, 3, 3),
    Sketcher.Constraint("Horizontal", 3, 3, 4, 3),
    Sketcher.Constraint("Horizontal", 4, 3, 5, 3),
    Sketcher.Constraint("Horizontal", 5, 3, 6, 3),
    Sketcher.Constraint("Horizontal", 6, 3, 7, 3),
    Sketcher.Constraint("Horizontal", 7, 3, 8, 3),
    Sketcher.Constraint("Horizontal", 8, 3, 9, 3),
    Sketcher.Constraint("Horizontal", 9, 3, 10, 3),
    Sketcher.Constraint("Horizontal", 10, 3, 11, 3),
    Sketcher.Constraint("Horizontal", 11, 3, 12, 3),
    Sketcher.Constraint("Horizontal", 12, 3, 13, 3),
    Sketcher.Constraint("Horizontal", 13, 3, 14, 3),
    Sketcher.Constraint("Horizontal", 14, 3, 15, 3),
    Sketcher.Constraint("Horizontal", 15, 3, 16, 3),
    Sketcher.Constraint("Horizontal", 16, 3, 17, 3),
    Sketcher.Constraint("Horizontal", 17, 3, 18, 3),
    Sketcher.Constraint("Horizontal", 18, 3, 19, 3),
    Sketcher.Constraint("Vertical", 20, 3, 21, 3),
    Sketcher.Constraint("Vertical", 21, 3, 22, 3),
    Sketcher.Constraint("Vertical", 22, 3, 23, 3),
    Sketcher.Constraint("Vertical", 23, 3, 24, 3),
    Sketcher.Constraint("Vertical", 24, 3, 25, 3),
    Sketcher.Constraint("Vertical", 25, 3, 26, 3),
    Sketcher.Constraint("Vertical", 26, 3, 27, 3),
    Sketcher.Constraint("Vertical", 27, 3, 28, 3),
    Sketcher.Constraint("Vertical", 28, 3, 29, 3),
    Sketcher.Constraint("Vertical", 29, 3, 30, 3),
    Sketcher.Constraint("Vertical", 30, 3, 31, 3),
    Sketcher.Constraint("Diameter", 0, Q("4.14 mm")),
    Sketcher.Constraint("DistanceX", 0, 3, -1, 1, Q("246 mm")),
    Sketcher.Constraint("DistanceX", 5, 3, -1, 1, Q("119 mm")),
    Sketcher.Constraint("DistanceX", -1, 1, 10, 3, Q("8 mm")),
    Sketcher.Constraint("DistanceX", -1, 1, 15, 3, Q("135 mm")),
    Sketcher.Constraint("DistanceY", 22, 3, -1, 1, Q("137 mm")),
    Sketcher.Constraint("DistanceY", -1, 1, 28, 3, Q("117 mm")),
    Sketcher.Constraint("DistanceX", 1, 3, 6, 3, Q("127 mm")),
    Sketcher.Constraint("DistanceX", 2, 3, 7, 3, Q("127 mm")),
    Sketcher.Constraint("DistanceX", 3, 3, 8, 3, Q("127 mm")),
    Sketcher.Constraint("DistanceX", 4, 3, 9, 3, Q("127 mm")),
    Sketcher.Constraint("DistanceX", 6, 3, 11, 3, Q("127 mm")),
    Sketcher.Constraint("DistanceX", 7, 3, 12, 3, Q("127 mm")),
    Sketcher.Constraint("DistanceX", 8, 3, 13, 3, Q("127 mm")),
    Sketcher.Constraint("DistanceX", 9, 3, 14, 3, Q("127 mm")),
    Sketcher.Constraint("DistanceX", 11, 3, 16, 3, Q("127 mm")),
    Sketcher.Constraint("DistanceX", 12, 3, 17, 3, Q("127 mm")),
    Sketcher.Constraint("DistanceX", 13, 3, 18, 3, Q("127 mm")),
    Sketcher.Constraint("DistanceX", 14, 3, 19, 3, Q("127 mm")),
    Sketcher.Constraint("DistanceX", 17, 3, 20, 3, Q("57 mm")),
    Sketcher.Constraint("DistanceY", 19, 3, 24, 3, Q("299 mm")),
    Sketcher.Constraint("DistanceY", 20, 3, 25, 3, Q("254 mm")),
    Sketcher.Constraint("DistanceY", 25, 3, 26, 3, Q("127 mm")),
    Sketcher.Constraint("DistanceY", 26, 3, 31, 3, Q("254 mm")),
    Sketcher.Constraint("DistanceY", 0, 3, -1, 1, Q("385.2 mm")),
    Sketcher.Constraint("DistanceX", 1, 3, -1, 1, Q("220.6 mm")),
    Sketcher.Constraint("DistanceX", 2, 3, -1, 1, Q("195.2 mm")),
    Sketcher.Constraint("DistanceX", 3, 3, -1, 1, Q("169.8 mm")),
    Sketcher.Constraint("DistanceX", 4, 3, -1, 1, Q("144.4 mm")),
    Sketcher.Constraint("DistanceY", 20, 3, -1, 1, Q("314.8 mm")),
    Sketcher.Constraint("DistanceY", 21, 3, -1, 1, Q("289.4 mm")),
    Sketcher.Constraint("DistanceY", 23, 3, -1, 1, Q("111.6 mm")),
    Sketcher.Constraint("DistanceY", -1, 1, 27, 3, Q("91.6 mm")),
    Sketcher.Constraint("DistanceY", -1, 1, 29, 3, Q("142.4 mm")),
    Sketcher.Constraint("DistanceY", -1, 1, 30, 3, Q("294.8 mm")),
])
pocket4 = body.newObject("PartDesign::Pocket", "Pocket003")
pocket4.Profile = sketch5
pocket4.Length = 10

sketch6 = body.newObject("Sketcher::SketchObject", "Sketch005")
sketch6.AttachmentSupport = (doc.getObject("XZ_Plane"), [""])
sketch6.MapMode = "FlatFace"
sketch6.AttachmentOffset = App.Placement(Vector(0, 0, -5), App.Rotation())
sketch6.addGeometry([
    Part.LineSegment(Vector(-256, -398, 0), Vector(-256, -353, 0)),
    Part.LineSegment(Vector(-256, -353, 0), Vector(256, -353, 0)),
    Part.LineSegment(Vector(256, -353, 0), Vector(256, -398, 0)),
    Part.LineSegment(Vector(256, -398, 0), Vector(-256, -398, 0)),
], False)
sketch6.addConstraint([
    Sketcher.Constraint("Coincident", 0, 2, 1, 1),
    Sketcher.Constraint("Coincident", 1, 2, 2, 1),
    Sketcher.Constraint("Coincident", 2, 2, 3, 1),
    Sketcher.Constraint("Coincident", 3, 2, 0, 1),
    Sketcher.Constraint("Vertical", 0),
    Sketcher.Constraint("Horizontal", 1),
    Sketcher.Constraint("Vertical", 2),
    Sketcher.Constraint("Horizontal", 3),
    Sketcher.Constraint("DistanceX", 1, 1, 1, 2, Q("511 mm")),
    Sketcher.Constraint("DistanceY", 0, 1, 0, 2, Q("45 mm")),
    Sketcher.Constraint("DistanceX", 0, 2, -1, 1, Q("255.5 mm")),
    Sketcher.Constraint("DistanceY", 0, 2, -1, 1, Q("352.9 mm")),
])
pad2 = body.newObject("PartDesign::Pad", "Pad001")
pad2.Profile = sketch6
pad2.Length = 5

doc.recompute()
